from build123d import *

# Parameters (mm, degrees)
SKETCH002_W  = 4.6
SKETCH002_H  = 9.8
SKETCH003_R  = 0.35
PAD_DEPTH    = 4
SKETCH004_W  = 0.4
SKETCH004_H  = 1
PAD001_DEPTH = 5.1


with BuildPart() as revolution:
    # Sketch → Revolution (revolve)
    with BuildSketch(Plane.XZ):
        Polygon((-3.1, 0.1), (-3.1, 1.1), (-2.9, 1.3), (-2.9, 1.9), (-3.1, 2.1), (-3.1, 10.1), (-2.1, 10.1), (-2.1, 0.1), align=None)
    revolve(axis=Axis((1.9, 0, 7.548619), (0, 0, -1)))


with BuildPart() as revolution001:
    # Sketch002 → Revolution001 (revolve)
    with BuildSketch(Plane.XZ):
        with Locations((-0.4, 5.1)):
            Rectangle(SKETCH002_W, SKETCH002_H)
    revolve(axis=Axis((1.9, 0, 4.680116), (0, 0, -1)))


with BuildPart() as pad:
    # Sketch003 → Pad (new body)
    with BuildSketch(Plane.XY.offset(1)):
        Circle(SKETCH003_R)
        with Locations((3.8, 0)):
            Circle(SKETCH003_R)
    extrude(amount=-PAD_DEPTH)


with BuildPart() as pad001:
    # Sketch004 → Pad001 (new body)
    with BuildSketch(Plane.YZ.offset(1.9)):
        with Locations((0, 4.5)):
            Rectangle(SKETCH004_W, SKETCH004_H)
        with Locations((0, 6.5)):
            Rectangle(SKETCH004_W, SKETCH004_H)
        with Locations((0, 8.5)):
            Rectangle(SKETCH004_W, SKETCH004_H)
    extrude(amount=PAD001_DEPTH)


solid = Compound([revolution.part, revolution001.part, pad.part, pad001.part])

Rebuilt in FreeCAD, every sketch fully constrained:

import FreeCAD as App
import Part
import Sketcher

V = App.Vector
Q = App.Units.Quantity


def add_polygon(sketch, points):
    """Adds a closed chain of lines whose ends are joined by coincident constraints."""
    first, n = sketch.GeometryCount, len(points)
    for a, b in zip(points, points[1:] + points[:1]):
        sketch.addGeometry(Part.LineSegment(App.Vector(*a, 0), App.Vector(*b, 0)), False)
    for i in range(n):
        sketch.addConstraint(Sketcher.Constraint("Coincident", first + i, 2, first + (i + 1) % n, 1))

doc = App.newDocument("Part")
body = doc.addObject("PartDesign::Body", "Body")

sketch1 = body.newObject("Sketcher::SketchObject", "Sketch")
sketch1.AttachmentSupport = (doc.getObject("XZ_Plane"), [""])
sketch1.MapMode = "FlatFace"
add_polygon(sketch1, [(-3.1, 1.1), (-3.1, 0.1), (-2.1, 0.1), (-2.1, 10.1), (-3.1, 10.1), (-3.1, 2.1), (-2.9, 1.9), (-2.9, 1.3)])
sketch1.addGeometry(Part.LineSegment(V(1.9, 10.1, 0), V(1.9, 0.1, 0)), True)
sketch1.addConstraint([
    Sketcher.Constraint("Vertical", 0),
    Sketcher.Constraint("Horizontal", 1),
    Sketcher.Constraint("Vertical", 2),
    Sketcher.Constraint("Horizontal", 3),
    Sketcher.Constraint("Vertical", 4),
    Sketcher.Constraint("Vertical", 6),
    Sketcher.Constraint("Vertical", 8),
    Sketcher.Constraint("Perpendicular", 5, 7),
    Sketcher.Constraint("Horizontal", 3, 2, 8, 1),
    Sketcher.Constraint("Horizontal", 1, 2, 8, 2),
    Sketcher.Constraint("Vertical", 0, 2, 3, 2),
    Sketcher.Constraint("Equal", 3, 0),
    Sketcher.Constraint("Equal", 5, 7),
    Sketcher.Constraint("DistanceX", 1, 1, 1, 2, Q("1 mm")),
    Sketcher.Constraint("DistanceY", 2, 1, 2, 2, Q("10 mm")),
    Sketcher.Constraint("DistanceY", 4, 2, 4, 1, Q("8 mm")),
    Sketcher.Constraint("DistanceY", 6, 2, 6, 1, Q("0.6 mm")),
    Sketcher.Constraint("DistanceX", 2, 2, 8, 1, Q("4 mm")),
    Sketcher.Constraint("DistanceX", 0, 2, -1, 1, Q("3.1 mm")),
    Sketcher.Constraint("DistanceY", -1, 1, 0, 2, Q("0.1 mm")),
])
revolution = body.newObject("PartDesign::Revolution", "Revolution")
revolution.Profile = sketch1
revolution.ReferenceAxis = (sketch1, ["Axis0"])
revolution.Angle = 360
body2 = doc.addObject("PartDesign::Body", "Body001")

sketch2 = body2.newObject("Sketcher::SketchObject", "Sketch001")
sketch2.AttachmentSupport = (doc.getObject("XZ_Plane001"), [""])
sketch2.MapMode = "FlatFace"
add_polygon(sketch2, [(-2.7, 10), (-2.7, 0.2), (1.9, 0.2), (1.9, 10)])
sketch2.addGeometry(Part.LineSegment(V(1.9, 10, 0), V(1.9, 0.2, 0)), True)
sketch2.addConstraint([
    Sketcher.Constraint("Vertical", 0),
    Sketcher.Constraint("Horizontal", 1),
    Sketcher.Constraint("Vertical", 2),
    Sketcher.Constraint("Horizontal", 3),
    Sketcher.Constraint("Vertical", 4),
    Sketcher.Constraint("Coincident", 4, 1, 2, 2),
    Sketcher.Constraint("Horizontal", 0, 2, 4, 2),
    Sketcher.Constraint("DistanceX", 1, 1, 1, 2, Q("4.6 mm")),
    Sketcher.Constraint("DistanceY", 0, 2, 0, 1, Q("9.8 mm")),
    Sketcher.Constraint("DistanceY", -1, 1, 2, 2, Q("10 mm")),
    Sketcher.Constraint("DistanceX", 0, 2, -1, 1, Q("2.7 mm")),
])
revolution2 = body2.newObject("PartDesign::Revolution", "Revolution001")
revolution2.Profile = sketch2
revolution2.ReferenceAxis = (sketch2, ["Axis0"])
revolution2.Angle = 360
body3 = doc.addObject("PartDesign::Body", "Body002")
body3.AllowCompound = True

sketch3 = body3.newObject("Sketcher::SketchObject", "Sketch002")
sketch3.AttachmentSupport = (doc.getObject("XY_Plane002"), [""])
sketch3.MapMode = "FlatFace"
sketch3.AttachmentOffset = App.Placement(V(0, 0, 1), App.Rotation())
sketch3.addGeometry([
    Part.Circle(V(0, 0, 0), V(0, 0, 1), 0.35),
    Part.Circle(V(3.8, 0, 0), V(0, 0, 1), 0.35),
], False)
sketch3.addConstraint([
    Sketcher.Constraint("Coincident", 0, 3, -1, 1),
    Sketcher.Constraint("Equal", 0, 1),
    Sketcher.Constraint("PointOnObject", 1, 3, -1),
    Sketcher.Constraint("Diameter", 0, Q("0.7 mm")),
    Sketcher.Constraint("DistanceX", -1, 1, 1, 3, Q("3.8 mm")),
])
pad1 = body3.newObject("PartDesign::Pad", "Pad")
pad1.Profile = sketch3
pad1.Length = 4
pad1.Reversed = True
body4 = doc.addObject("PartDesign::Body", "Body003")
body4.AllowCompound = True

sketch4 = body4.newObject("Sketcher::SketchObject", "Sketch003")
sketch4.AttachmentSupport = (doc.getObject("YZ_Plane003"), [""])
sketch4.MapMode = "FlatFace"
sketch4.AttachmentOffset = App.Placement(V(0, 0, 1.9), App.Rotation())
add_polygon(sketch4, [(-0.2, 5), (-0.2, 4), (0.2, 4), (0.2, 5)])
add_polygon(sketch4, [(-0.2, 7), (-0.2, 6), (0.2, 6), (0.2, 7)])
add_polygon(sketch4, [(-0.2, 9), (-0.2, 8), (0.2, 8), (0.2, 9)])
sketch4.addConstraint([
    Sketcher.Constraint("Vertical", 0),
    Sketcher.Constraint("Horizontal", 1),
    Sketcher.Constraint("Vertical", 2),
    Sketcher.Constraint("Horizontal", 3),
    Sketcher.Constraint("Vertical", 4),
    Sketcher.Constraint("Horizontal", 5),
    Sketcher.Constraint("Vertical", 6),
    Sketcher.Constraint("Horizontal", 7),
    Sketcher.Constraint("Vertical", 8),
    Sketcher.Constraint("Horizontal", 9),
    Sketcher.Constraint("Vertical", 10),
    Sketcher.Constraint("Horizontal", 11),
    Sketcher.Constraint("Vertical", 3, 2, 4, 2),
    Sketcher.Constraint("Vertical", 2, 2, 5, 2),
    Sketcher.Constraint("Vertical", 7, 2, 8, 2),
    Sketcher.Constraint("Vertical", 6, 2, 9, 2),
    Sketcher.Constraint("Equal", 2, 4),
    Sketcher.Constraint("Equal", 6, 8),
    Sketcher.Constraint("DistanceY", 0, 2, 0, 1, Q("1 mm")),
    Sketcher.Constraint("DistanceX", 1, 1, 1, 2, Q("0.4 mm")),
    Sketcher.Constraint("DistanceY", -1, 1, 0, 2, Q("4 mm")),
    Sketcher.Constraint("DistanceY", -1, 1, 4, 2, Q("6 mm")),
    Sketcher.Constraint("DistanceY", -1, 1, 8, 2, Q("8 mm")),
    Sketcher.Constraint("DistanceX", 0, 2, -1, 1, Q("0.2 mm")),
])
pad2 = body4.newObject("PartDesign::Pad", "Pad001")
pad2.Profile = sketch4
pad2.Length = 5.1

doc.recompute()
